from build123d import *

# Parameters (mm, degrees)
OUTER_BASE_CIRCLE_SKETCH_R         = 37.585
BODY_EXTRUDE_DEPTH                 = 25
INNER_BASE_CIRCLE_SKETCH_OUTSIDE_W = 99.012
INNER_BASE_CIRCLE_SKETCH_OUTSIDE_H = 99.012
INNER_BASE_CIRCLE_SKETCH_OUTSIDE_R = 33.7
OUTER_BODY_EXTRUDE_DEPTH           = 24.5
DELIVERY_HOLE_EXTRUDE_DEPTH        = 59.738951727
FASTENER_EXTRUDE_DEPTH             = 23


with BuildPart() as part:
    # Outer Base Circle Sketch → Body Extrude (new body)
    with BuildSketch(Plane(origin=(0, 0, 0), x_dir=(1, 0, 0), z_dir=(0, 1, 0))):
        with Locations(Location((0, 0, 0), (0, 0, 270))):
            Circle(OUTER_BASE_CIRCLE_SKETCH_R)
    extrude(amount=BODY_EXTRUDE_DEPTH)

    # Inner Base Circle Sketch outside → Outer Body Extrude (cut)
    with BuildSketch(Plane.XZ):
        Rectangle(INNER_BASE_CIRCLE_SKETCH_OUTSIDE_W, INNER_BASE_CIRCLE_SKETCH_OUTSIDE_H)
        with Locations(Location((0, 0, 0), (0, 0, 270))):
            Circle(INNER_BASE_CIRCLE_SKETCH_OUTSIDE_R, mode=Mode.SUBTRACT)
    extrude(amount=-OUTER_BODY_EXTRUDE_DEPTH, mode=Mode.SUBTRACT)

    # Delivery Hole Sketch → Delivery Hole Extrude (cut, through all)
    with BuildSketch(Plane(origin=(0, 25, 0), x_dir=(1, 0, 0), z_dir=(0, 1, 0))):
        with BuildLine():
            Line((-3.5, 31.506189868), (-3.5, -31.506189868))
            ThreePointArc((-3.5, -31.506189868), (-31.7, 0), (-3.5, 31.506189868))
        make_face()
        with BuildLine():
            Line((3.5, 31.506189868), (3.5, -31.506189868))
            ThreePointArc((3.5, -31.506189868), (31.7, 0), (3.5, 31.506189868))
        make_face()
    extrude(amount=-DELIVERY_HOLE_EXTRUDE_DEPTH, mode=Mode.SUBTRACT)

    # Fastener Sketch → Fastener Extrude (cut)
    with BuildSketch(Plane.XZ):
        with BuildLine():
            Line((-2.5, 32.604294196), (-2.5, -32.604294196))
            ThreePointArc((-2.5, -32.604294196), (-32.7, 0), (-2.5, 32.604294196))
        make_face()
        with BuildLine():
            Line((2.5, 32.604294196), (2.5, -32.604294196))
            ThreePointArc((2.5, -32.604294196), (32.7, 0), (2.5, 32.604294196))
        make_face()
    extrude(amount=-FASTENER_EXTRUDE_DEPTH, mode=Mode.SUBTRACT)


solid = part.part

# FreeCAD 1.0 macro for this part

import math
import FreeCAD as App
import Part
import Sketcher
Q = App.Units.Quantity


def add_polygon(sketch, points):
    """Adds a closed chain of lines whose ends are joined by coincident constraints."""
    first, n = sketch.GeometryCount, len(points)
    for a, b in zip(points, points[1:] + points[:1]):
        sketch.addGeometry(Part.LineSegment(App.Vector(*a, 0), App.Vector(*b, 0)), False)
    for i in range(n):
        sketch.addConstraint(Sketcher.Constraint("Coincident", first + i, 2, first + (i + 1) % n, 1))

doc = App.newDocument("Part")
body = doc.addObject("PartDesign::Body", "Body")

# Sketch on XZ plane
sketch1 = doc.addObject("Sketcher::SketchObject", "Sketch")
body.addObject(sketch1)
sketch1.AttachmentSupport = (doc.XZ_Plane, [""])
sketch1.MapMode = "FlatFace"
sketch1.addGeometry(Part.Circle(App.Vector(0, 0, 0), App.Vector(0, 0, 1), 38), False)
sketch1.addConstraint([
    Sketcher.Constraint("Coincident", 0, 3, -1, 1),
    Sketcher.Constraint("Diameter", 0, Q("75.17 mm")),
])
pad1 = doc.addObject("PartDesign::Pad", "Pad")
body.addObject(pad1)
pad1.Profile = sketch1
pad1.Length = 25
pad1.Reversed = True

# Sketch on XZ plane
sketch2 = doc.addObject("Sketcher::SketchObject", "Sketch001")
body.addObject(sketch2)
sketch2.AttachmentSupport = (doc.XZ_Plane, [""])
sketch2.MapMode = "FlatFace"
add_polygon(sketch2, [(-50, 50), (-50, -50), (50, -50), (50, 50)])  # lines 0-3
sketch2.addGeometry(Part.Circle(App.Vector(0, 0, 0), App.Vector(0, 0, 1), 34), False)  # 4
sketch2.addConstraint([
    Sketcher.Constraint("Vertical", 0),
    Sketcher.Constraint("Horizontal", 1),
    Sketcher.Constraint("Vertical", 2),
    Sketcher.Constraint("Horizontal", 3),
    Sketcher.Constraint("Coincident", 4, 3, -1, 1),
    Sketcher.Constraint("Symmetric", 0, 2, 2, 2, -1, 1),
    Sketcher.Constraint("Equal", 3, 0),
    Sketcher.Constraint("Diameter", 4, Q("67.4 mm")),
    Sketcher.Constraint("DistanceX", 1, 1, 1, 2, Q("99.012 mm")),
])
pocket1 = doc.addObject("PartDesign::Pocket", "Pocket")
body.addObject(pocket1)
pocket1.Profile = sketch2
pocket1.Length = 24.5

# Sketch on XZ plane
sketch3 = doc.addObject("Sketcher::SketchObject", "Sketch002")
body.addObject(sketch3)
sketch3.AttachmentSupport = (doc.XZ_Plane, [""])
sketch3.MapMode = "FlatFace"
sketch3.AttachmentOffset = App.Placement(App.Vector(0, 0, -25), App.Rotation())
sketch3.addGeometry([
    Part.LineSegment(App.Vector(-4, 32, 0), App.Vector(-4, -32, 0)),
    Part.ArcOfCircle(Part.Circle(App.Vector(0, 0, 0), App.Vector(0, 0, 1), 32), math.radians(96), math.radians(264)),
    Part.LineSegment(App.Vector(4, -32, 0), App.Vector(4, 32, 0)),
    Part.ArcOfCircle(Part.Circle(App.Vector(0, 0, 0), App.Vector(0, 0, 1), 32), math.radians(-84), math.radians(84)),
], False)
sketch3.addConstraint([
    Sketcher.Constraint("Coincident", 0, 1, 1, 1),
    Sketcher.Constraint("Coincident", 1, 2, 0, 2),
    Sketcher.Constraint("Coincident", 2, 1, 3, 1),
    Sketcher.Constraint("Coincident", 3, 2, 2, 2),
    Sketcher.Constraint("Vertical", 0),
    Sketcher.Constraint("Vertical", 2),
    Sketcher.Constraint("Coincident", 1, 3, -1, 1),
    Sketcher.Constraint("Coincident", 3, 3, -1, 1),
    Sketcher.Constraint("Equal", 1, 3),
    Sketcher.Constraint("Horizontal", 1, 2, 2, 1),
    Sketcher.Constraint("Radius", 1, Q("31.7 mm")),
    Sketcher.Constraint("DistanceX", 1, 2, 2, 1, Q("7 mm")),
])
pocket2 = doc.addObject("PartDesign::Pocket", "Pocket001")
body.addObject(pocket2)
pocket2.Profile = sketch3
pocket2.Type = "ThroughAll"
pocket2.Reversed = True

# Sketch on XZ plane
sketch4 = doc.addObject("Sketcher::SketchObject", "Sketch003")
body.addObject(sketch4)
sketch4.AttachmentSupport = (doc.XZ_Plane, [""])
sketch4.MapMode = "FlatFace"
sketch4.addGeometry([
    Part.LineSegment(App.Vector(-2, -33, 0), App.Vector(-2, 33, 0)),
    Part.ArcOfCircle(Part.Circle(App.Vector(0, 0, 0), App.Vector(0, 0, 1), 33), math.radians(94), math.radians(266)),
    Part.LineSegment(App.Vector(2, 33, 0), App.Vector(2, -33, 0)),
    Part.ArcOfCircle(Part.Circle(App.Vector(0, 0, 0), App.Vector(0, 0, 1), 33), math.radians(-86), math.radians(86)),
], False)
sketch4.addConstraint([
    Sketcher.Constraint("Coincident", 0, 1, 1, 2),
    Sketcher.Constraint("Coincident", 1, 1, 0, 2),
    Sketcher.Constraint("Coincident", 2, 1, 3, 2),
    Sketcher.Constraint("Coincident", 3, 1, 2, 2),
    Sketcher.Constraint("Vertical", 0),
    Sketcher.Constraint("Vertical", 2),
    Sketcher.Constraint("Coincident", 1, 3, -1, 1),
    Sketcher.Constraint("Coincident", 3, 3, -1, 1),
    Sketcher.Constraint("Equal", 1, 3),
    Sketcher.Constraint("Horizontal", 1, 1, 2, 1),
    Sketcher.Constraint("Radius", 1, Q("32.7 mm")),
    Sketcher.Constraint("DistanceX", 1, 1, 2, 1, Q("5 mm")),
])
pocket3 = doc.addObject("PartDesign::Pocket", "Pocket002")
body.addObject(pocket3)
pocket3.Profile = sketch4
pocket3.Length = 23

doc.recompute()
